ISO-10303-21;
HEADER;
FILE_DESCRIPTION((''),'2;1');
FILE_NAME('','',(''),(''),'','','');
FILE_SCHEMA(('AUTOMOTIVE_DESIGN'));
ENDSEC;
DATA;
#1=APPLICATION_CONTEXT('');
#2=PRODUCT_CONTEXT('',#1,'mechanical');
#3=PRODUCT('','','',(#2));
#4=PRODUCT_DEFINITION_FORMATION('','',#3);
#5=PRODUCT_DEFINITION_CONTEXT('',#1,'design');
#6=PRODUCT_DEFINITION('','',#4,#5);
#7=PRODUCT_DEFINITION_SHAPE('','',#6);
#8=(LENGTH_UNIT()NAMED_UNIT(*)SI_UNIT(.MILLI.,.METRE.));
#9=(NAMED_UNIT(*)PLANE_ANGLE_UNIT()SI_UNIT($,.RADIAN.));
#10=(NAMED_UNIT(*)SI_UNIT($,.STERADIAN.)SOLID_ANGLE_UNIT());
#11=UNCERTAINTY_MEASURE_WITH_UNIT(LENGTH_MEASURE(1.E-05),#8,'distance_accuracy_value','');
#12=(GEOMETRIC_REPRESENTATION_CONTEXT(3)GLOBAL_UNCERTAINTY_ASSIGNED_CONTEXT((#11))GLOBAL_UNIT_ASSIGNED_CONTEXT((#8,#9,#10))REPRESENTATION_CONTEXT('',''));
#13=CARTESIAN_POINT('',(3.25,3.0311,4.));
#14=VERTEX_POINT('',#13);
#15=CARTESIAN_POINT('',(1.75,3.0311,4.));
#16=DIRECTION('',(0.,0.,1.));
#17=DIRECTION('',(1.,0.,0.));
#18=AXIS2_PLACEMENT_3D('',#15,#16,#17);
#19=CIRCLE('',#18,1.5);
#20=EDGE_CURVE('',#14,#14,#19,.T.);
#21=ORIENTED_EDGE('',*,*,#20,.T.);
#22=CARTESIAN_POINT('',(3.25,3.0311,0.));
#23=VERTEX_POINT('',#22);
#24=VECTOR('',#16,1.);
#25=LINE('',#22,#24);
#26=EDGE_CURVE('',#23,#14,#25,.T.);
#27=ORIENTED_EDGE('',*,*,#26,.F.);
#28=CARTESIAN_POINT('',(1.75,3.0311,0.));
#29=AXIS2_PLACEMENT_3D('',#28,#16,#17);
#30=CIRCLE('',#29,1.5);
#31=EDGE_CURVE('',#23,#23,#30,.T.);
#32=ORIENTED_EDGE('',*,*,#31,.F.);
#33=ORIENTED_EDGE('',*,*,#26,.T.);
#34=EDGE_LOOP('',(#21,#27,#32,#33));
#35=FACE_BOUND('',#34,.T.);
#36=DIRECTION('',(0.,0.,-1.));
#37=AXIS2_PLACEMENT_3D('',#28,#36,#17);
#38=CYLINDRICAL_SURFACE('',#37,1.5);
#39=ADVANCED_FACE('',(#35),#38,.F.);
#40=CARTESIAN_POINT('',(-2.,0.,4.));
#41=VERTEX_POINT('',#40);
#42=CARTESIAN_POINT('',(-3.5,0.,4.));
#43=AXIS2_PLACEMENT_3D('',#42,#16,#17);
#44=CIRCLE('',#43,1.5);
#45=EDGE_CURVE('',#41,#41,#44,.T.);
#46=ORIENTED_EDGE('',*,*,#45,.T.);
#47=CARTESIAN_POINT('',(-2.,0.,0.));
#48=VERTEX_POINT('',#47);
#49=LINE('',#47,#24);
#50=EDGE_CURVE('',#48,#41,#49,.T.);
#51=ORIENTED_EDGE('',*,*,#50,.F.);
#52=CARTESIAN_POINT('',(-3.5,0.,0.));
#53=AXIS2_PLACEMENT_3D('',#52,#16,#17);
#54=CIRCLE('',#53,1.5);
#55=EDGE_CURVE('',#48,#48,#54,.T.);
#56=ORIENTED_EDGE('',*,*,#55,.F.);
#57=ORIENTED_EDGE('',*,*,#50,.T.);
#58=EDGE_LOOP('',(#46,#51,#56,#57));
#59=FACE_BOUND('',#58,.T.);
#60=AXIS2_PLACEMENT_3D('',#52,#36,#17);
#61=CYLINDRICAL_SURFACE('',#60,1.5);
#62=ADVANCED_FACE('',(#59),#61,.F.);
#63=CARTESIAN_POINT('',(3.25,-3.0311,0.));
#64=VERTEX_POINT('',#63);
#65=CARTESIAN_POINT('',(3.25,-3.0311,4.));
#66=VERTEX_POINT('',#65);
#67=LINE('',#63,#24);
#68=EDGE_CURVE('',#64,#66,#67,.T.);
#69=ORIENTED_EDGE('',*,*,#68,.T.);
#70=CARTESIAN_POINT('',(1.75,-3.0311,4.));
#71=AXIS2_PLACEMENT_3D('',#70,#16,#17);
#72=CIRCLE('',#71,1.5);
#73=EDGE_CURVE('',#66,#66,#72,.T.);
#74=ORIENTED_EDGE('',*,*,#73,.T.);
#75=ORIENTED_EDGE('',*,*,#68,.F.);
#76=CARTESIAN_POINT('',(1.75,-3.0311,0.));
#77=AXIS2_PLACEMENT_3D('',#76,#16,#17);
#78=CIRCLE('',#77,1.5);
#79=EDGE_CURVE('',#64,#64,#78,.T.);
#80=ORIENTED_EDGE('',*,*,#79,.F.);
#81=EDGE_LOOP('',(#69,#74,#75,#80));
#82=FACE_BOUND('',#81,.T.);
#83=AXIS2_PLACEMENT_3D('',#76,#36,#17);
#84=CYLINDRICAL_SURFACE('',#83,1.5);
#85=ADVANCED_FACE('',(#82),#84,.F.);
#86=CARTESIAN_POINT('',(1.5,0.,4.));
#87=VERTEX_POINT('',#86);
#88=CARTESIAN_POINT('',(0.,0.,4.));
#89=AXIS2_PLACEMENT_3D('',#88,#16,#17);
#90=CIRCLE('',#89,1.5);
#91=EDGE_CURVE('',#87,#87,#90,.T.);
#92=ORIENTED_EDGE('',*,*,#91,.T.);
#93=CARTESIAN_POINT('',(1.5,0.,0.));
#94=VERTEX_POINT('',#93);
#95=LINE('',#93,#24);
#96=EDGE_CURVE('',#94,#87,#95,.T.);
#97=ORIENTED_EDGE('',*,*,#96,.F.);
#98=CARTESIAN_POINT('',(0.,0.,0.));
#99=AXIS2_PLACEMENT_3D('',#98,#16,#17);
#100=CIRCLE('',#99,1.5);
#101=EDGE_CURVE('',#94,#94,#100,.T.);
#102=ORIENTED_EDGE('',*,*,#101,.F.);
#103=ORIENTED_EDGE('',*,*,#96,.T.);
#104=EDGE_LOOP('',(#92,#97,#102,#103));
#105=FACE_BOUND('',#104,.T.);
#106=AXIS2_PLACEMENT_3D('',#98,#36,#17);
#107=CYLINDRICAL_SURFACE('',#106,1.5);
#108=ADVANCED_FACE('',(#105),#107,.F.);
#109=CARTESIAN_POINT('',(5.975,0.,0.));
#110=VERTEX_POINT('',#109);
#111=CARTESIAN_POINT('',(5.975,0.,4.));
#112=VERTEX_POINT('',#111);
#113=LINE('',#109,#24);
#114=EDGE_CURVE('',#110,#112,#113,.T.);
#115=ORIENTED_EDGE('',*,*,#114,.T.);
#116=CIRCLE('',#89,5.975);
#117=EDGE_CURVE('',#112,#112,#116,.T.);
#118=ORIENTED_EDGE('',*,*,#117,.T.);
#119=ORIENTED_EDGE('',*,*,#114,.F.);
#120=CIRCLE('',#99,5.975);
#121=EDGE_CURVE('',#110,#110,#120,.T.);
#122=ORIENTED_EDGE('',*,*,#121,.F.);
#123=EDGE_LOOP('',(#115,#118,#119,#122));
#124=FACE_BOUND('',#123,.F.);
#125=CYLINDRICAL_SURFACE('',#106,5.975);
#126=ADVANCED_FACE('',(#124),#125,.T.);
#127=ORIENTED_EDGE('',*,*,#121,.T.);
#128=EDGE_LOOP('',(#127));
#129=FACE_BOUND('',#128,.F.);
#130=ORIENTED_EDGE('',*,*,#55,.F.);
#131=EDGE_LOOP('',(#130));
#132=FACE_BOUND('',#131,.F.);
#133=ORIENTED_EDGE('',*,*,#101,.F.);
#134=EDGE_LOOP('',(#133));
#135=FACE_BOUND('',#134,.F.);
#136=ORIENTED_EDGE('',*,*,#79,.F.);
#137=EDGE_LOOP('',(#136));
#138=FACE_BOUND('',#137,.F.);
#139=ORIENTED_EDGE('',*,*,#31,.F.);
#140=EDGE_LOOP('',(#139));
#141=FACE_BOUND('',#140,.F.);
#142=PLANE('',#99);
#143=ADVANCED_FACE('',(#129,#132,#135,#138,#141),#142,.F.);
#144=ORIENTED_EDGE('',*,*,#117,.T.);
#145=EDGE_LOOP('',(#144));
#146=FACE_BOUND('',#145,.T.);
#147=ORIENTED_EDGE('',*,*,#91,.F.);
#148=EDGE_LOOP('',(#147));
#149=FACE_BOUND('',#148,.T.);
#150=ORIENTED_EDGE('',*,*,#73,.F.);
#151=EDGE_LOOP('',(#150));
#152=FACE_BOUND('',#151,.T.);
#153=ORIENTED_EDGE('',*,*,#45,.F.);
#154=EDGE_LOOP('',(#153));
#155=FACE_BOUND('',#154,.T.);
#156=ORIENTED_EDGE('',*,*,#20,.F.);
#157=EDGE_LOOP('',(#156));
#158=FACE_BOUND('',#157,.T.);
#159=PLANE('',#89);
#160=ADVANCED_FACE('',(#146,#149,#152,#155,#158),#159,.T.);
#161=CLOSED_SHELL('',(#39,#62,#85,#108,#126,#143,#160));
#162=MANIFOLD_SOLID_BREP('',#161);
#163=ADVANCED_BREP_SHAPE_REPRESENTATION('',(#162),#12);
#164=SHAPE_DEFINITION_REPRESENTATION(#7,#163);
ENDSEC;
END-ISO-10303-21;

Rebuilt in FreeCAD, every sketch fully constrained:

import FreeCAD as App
import Part
import Sketcher

V = App.Vector

doc = App.newDocument("Part")
body = doc.addObject("PartDesign::Body", "Body")

# Sketch on XY plane
sketch1 = body.newObject("Sketcher::SketchObject", "Sketch")
sketch1.AttachmentSupport = (doc.getObject("XY_Plane"), [""])
sketch1.MapMode = "FlatFace"
sketch1.addGeometry([
    Part.Circle(V(0, 0, 0), V(0, 0, 1), 5.975),  # 0
    Part.Circle(V(1.75, -3.0311, 0), V(0, 0, 1), 1.5),  # 1
    Part.Circle(V(-3.5, 0, 0), V(0, 0, 1), 1.5),  # 2
    Part.Circle(V(0, 0, 0), V(0, 0, 1), 1.5),  # 3
    Part.Circle(V(1.75, 3.0311, 0), V(0, 0, 1), 1.5),  # 4
], False)
sketch1.addConstraint([
    Sketcher.Constraint("Coincident", 0, 3, -1, 1),
    Sketcher.Constraint("Coincident", 3, 3, -1, 1),
    Sketcher.Constraint("Equal", 1, 2),
    Sketcher.Constraint("Equal", 2, 3),
    Sketcher.Constraint("Equal", 3, 4),
    Sketcher.Constraint("Symmetric", 1, 3, 4, 3, -1),
    Sketcher.Constraint("PointOnObject", 2, 3, -1),
    Sketcher.Constraint("Diameter", 1, 3.0),
    Sketcher.Constraint("Diameter", 0, 11.95),
    Sketcher.Constraint("DistanceX", 2, 3, -1, 1, 3.5),
    Sketcher.Constraint("DistanceX", -1, 1, 1, 3, 1.75),
    Sketcher.Constraint("DistanceY", 1, 3, -1, 1, 3.031),
])
pad1 = body.newObject("PartDesign::Pad", "Pad")
pad1.Profile = sketch1
pad1.Length = 4

doc.recompute()
